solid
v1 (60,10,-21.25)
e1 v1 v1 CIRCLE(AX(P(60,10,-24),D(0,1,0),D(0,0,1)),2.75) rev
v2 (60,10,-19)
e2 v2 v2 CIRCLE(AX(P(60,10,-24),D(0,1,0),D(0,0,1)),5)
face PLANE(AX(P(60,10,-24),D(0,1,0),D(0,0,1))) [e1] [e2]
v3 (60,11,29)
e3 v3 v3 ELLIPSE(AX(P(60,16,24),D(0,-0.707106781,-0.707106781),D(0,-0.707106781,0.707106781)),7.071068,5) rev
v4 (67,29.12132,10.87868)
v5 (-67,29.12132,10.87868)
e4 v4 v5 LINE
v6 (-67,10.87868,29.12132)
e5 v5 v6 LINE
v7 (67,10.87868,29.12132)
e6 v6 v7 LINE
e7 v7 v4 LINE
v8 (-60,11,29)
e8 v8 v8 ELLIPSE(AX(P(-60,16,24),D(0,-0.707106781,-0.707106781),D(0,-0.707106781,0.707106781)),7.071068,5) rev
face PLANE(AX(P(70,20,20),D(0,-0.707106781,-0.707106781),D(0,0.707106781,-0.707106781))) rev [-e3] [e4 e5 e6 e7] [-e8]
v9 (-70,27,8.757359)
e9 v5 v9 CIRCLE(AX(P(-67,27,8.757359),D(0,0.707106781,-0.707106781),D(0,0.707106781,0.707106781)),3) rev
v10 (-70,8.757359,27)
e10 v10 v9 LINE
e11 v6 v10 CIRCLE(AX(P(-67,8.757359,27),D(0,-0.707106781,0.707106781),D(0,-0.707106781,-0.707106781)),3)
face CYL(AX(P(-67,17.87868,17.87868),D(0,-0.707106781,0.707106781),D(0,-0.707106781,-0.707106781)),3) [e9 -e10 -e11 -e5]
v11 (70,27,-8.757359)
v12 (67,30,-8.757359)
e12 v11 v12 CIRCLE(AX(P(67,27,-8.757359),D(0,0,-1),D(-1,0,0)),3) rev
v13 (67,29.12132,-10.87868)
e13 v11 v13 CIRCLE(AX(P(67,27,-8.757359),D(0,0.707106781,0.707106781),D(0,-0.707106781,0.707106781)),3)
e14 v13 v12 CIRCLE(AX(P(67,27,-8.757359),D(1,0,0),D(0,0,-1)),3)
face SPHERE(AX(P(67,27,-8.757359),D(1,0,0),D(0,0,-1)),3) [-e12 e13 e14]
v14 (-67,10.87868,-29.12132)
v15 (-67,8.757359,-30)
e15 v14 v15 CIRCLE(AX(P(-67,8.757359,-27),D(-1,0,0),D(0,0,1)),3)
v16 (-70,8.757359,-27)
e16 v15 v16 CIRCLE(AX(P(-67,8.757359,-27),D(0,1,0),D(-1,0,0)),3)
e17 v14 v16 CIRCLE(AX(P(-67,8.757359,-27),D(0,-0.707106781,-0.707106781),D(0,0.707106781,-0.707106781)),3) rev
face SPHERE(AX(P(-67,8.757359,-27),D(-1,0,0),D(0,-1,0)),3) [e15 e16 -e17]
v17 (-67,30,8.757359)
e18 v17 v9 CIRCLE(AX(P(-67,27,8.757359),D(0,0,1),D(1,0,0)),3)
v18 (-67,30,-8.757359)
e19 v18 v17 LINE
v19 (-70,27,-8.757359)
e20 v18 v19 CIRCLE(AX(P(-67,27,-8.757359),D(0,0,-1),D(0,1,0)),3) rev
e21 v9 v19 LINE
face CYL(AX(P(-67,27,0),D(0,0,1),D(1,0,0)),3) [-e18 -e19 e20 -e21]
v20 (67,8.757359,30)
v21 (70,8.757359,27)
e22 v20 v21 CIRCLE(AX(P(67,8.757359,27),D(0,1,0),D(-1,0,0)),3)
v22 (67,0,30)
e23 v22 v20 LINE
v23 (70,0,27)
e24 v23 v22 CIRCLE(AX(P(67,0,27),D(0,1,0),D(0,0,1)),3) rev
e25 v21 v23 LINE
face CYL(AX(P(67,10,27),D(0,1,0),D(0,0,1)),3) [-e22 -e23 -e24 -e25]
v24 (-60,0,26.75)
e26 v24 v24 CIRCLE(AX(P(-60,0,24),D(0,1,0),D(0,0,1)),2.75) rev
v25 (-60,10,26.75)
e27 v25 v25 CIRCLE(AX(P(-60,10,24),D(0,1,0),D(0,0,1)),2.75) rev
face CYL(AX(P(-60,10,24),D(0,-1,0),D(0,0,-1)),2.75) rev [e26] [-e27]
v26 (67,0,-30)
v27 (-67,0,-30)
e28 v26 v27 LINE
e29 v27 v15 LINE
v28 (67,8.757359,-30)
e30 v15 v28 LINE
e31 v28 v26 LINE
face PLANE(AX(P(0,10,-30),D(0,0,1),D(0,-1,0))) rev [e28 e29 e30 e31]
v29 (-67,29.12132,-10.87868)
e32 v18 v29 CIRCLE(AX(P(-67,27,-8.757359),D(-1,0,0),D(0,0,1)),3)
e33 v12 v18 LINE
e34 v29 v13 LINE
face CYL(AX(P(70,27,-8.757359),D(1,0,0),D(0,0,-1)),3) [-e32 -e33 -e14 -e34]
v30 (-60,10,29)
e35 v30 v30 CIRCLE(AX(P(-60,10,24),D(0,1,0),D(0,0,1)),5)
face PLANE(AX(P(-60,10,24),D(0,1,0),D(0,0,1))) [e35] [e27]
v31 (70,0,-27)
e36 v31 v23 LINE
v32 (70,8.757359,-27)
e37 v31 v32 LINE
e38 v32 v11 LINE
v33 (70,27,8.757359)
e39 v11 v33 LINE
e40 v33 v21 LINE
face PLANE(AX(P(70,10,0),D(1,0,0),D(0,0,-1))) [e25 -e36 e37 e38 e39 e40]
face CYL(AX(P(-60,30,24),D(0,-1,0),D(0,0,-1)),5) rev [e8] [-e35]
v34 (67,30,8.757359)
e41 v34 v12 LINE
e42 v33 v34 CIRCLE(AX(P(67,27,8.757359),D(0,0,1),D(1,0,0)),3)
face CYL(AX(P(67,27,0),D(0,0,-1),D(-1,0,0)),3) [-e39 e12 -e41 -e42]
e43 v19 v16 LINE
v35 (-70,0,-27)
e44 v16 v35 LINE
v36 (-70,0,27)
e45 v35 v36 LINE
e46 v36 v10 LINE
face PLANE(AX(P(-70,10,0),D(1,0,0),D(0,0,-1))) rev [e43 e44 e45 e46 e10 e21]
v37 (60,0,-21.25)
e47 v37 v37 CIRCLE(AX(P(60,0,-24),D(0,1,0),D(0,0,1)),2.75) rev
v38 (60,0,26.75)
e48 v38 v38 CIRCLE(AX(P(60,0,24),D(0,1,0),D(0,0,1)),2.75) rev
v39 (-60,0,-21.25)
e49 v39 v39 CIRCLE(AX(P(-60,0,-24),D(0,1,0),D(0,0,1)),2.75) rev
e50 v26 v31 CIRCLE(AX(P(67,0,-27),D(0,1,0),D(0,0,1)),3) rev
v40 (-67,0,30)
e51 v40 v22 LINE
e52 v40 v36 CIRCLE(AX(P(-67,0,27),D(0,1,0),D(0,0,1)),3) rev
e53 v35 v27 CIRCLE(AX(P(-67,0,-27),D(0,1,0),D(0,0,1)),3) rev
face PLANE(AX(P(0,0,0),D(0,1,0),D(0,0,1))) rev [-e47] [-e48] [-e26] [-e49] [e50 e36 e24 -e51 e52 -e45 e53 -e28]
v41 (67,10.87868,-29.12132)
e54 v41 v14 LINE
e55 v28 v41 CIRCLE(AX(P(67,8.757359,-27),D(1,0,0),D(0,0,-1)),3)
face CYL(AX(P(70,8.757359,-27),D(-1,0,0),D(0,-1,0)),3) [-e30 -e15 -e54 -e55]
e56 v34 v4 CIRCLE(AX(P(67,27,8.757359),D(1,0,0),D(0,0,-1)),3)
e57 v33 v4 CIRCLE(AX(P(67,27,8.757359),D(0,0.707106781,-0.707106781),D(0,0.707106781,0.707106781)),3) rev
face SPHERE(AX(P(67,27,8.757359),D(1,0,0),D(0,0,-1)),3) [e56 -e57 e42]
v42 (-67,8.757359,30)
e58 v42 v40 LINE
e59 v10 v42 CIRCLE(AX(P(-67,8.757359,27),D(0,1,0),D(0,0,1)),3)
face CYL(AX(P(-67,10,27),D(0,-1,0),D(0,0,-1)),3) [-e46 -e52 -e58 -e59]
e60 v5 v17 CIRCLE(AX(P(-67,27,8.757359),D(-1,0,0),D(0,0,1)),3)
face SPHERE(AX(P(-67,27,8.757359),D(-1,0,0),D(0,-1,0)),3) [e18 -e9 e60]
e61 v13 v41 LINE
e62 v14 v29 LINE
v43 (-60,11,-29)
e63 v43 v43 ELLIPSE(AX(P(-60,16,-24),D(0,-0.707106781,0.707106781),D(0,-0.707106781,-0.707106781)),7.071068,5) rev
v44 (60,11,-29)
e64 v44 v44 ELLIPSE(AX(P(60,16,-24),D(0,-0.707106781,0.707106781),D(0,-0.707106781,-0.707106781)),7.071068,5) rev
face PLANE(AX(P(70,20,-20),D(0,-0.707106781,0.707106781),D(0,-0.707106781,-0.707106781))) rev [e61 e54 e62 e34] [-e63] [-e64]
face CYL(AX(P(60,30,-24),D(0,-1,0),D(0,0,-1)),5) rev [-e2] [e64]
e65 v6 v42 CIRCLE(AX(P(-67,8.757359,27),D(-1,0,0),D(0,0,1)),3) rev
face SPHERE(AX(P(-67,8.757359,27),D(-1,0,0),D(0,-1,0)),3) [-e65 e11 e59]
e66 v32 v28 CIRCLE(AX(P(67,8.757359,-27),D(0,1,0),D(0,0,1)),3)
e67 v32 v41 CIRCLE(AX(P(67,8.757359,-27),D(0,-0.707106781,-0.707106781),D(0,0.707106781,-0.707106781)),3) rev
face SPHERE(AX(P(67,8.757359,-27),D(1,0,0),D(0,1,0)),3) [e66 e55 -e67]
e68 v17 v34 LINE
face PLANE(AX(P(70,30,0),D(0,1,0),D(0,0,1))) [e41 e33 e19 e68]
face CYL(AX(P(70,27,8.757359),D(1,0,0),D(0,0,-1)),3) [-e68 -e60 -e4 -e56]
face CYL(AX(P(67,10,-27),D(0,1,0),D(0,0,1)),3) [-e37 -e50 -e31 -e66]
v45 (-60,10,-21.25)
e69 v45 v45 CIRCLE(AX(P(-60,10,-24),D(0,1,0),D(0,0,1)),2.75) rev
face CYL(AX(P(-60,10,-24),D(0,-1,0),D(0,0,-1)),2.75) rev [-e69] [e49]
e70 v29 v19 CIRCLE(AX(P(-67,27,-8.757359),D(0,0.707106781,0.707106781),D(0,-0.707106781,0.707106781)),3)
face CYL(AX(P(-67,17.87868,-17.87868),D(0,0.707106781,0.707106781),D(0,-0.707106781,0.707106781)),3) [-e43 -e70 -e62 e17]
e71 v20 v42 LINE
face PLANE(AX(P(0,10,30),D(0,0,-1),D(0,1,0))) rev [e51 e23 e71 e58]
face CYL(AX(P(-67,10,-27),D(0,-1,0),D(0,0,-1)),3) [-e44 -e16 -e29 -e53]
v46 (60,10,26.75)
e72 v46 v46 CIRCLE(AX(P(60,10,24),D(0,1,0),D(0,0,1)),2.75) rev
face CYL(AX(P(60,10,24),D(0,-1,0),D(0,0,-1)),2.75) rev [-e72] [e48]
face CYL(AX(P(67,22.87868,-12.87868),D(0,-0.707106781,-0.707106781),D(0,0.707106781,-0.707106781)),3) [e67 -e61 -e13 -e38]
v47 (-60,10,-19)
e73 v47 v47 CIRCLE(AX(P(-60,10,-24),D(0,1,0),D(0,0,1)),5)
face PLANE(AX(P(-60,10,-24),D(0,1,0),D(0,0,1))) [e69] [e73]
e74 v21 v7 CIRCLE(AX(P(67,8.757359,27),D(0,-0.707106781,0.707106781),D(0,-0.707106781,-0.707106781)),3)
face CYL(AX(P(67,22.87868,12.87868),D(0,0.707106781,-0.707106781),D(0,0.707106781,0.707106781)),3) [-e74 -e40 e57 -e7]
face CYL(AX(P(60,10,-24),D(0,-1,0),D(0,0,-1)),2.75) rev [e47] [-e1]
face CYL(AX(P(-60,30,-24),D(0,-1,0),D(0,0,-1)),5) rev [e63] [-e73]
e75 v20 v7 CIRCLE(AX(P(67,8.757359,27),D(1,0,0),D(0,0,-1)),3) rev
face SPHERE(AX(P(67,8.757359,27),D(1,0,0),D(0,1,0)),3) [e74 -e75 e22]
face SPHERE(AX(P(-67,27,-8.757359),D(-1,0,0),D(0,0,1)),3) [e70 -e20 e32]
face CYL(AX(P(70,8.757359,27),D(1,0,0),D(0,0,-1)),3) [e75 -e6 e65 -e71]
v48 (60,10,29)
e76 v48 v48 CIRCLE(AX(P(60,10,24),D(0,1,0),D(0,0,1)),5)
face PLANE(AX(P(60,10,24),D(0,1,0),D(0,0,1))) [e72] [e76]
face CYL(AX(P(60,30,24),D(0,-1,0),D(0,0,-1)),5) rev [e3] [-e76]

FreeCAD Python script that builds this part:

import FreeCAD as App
import Part
import Sketcher
Q = App.Units.Quantity


def edges_at(feature, points):
    """Names of the edges that pass closest to the given points."""
    edges = feature.Shape.Edges
    near = lambda p: min(range(len(edges)), key=lambda i: edges[i].distToShape(Part.Vertex(*p))[0])
    return sorted({f"Edge{near(p) + 1}" for p in points})

doc = App.newDocument("Part")
body = doc.addObject("PartDesign::Body", "Body")

# Sketch on XZ plane
sketch1 = body.newObject("Sketcher::SketchObject", "Sketch")
sketch1.AttachmentSupport = (doc.getObject("XZ_Plane"), [""])
sketch1.MapMode = "FlatFace"
sketch1.addGeometry(Part.LineSegment(App.Vector(70, -30, 0), App.Vector(-70, -30, 0)), False)
sketch1.addGeometry(Part.LineSegment(App.Vector(-70, -30, 0), App.Vector(-70, 30, 0)), False)
sketch1.addGeometry(Part.LineSegment(App.Vector(-70, 30, 0), App.Vector(70, 30, 0)), False)
sketch1.addGeometry(Part.LineSegment(App.Vector(70, 30, 0), App.Vector(70, -30, 0)), False)
sketch1.addGeometry(Part.Circle(App.Vector(60, -24, 0), App.Vector(0, 0, 1), 2.8), False)
sketch1.addGeometry(Part.Circle(App.Vector(-60, 24, 0), App.Vector(0, 0, 1), 2.8), False)
sketch1.addGeometry(Part.Circle(App.Vector(60, 24, 0), App.Vector(0, 0, 1), 2.8), False)
sketch1.addGeometry(Part.Circle(App.Vector(-60, -24, 0), App.Vector(0, 0, 1), 2.8), False)
sketch1.addConstraint(Sketcher.Constraint("Coincident", 0, 2, 1, 1))
sketch1.addConstraint(Sketcher.Constraint("Coincident", 1, 2, 2, 1))
sketch1.addConstraint(Sketcher.Constraint("Coincident", 2, 2, 3, 1))
sketch1.addConstraint(Sketcher.Constraint("Coincident", 3, 2, 0, 1))
sketch1.addConstraint(Sketcher.Constraint("Horizontal", 0))
sketch1.addConstraint(Sketcher.Constraint("Vertical", 1))
sketch1.addConstraint(Sketcher.Constraint("Horizontal", 2))
sketch1.addConstraint(Sketcher.Constraint("Vertical", 3))
sketch1.addConstraint(Sketcher.Constraint("Equal", 4, 5))
sketch1.addConstraint(Sketcher.Constraint("Equal", 5, 6))
sketch1.addConstraint(Sketcher.Constraint("Equal", 6, 7))
sketch1.addConstraint(Sketcher.Constraint("Symmetric", 4, 3, 5, 3, -1, 1))
sketch1.addConstraint(Sketcher.Constraint("Symmetric", 6, 3, 7, 3, -1, 1))
sketch1.addConstraint(Sketcher.Constraint("Symmetric", 0, 2, 2, 2, -1, 1))
sketch1.addConstraint(Sketcher.Constraint("Symmetric", 5, 3, 6, 3, -2))
sketch1.addConstraint(Sketcher.Constraint("Diameter", 4, Q("5.5 mm")))
sketch1.addConstraint(Sketcher.Constraint("DistanceX", 0, 2, 0, 1, Q("140 mm")))
sketch1.addConstraint(Sketcher.Constraint("DistanceY", 1, 1, 1, 2, Q("60 mm")))
sketch1.addConstraint(Sketcher.Constraint("DistanceX", -1, 1, 4, 3, Q("60 mm")))
sketch1.addConstraint(Sketcher.Constraint("DistanceY", 4, 3, -1, 1, Q("24 mm")))
pad1 = body.newObject("PartDesign::Pad", "Pad")
pad1.Profile = sketch1
pad1.Length = 10
pad1.Reversed = True

# Sketch on YZ plane
sketch2 = body.newObject("Sketcher::SketchObject", "Sketch001")
sketch2.AttachmentSupport = (doc.getObject("YZ_Plane"), [""])
sketch2.MapMode = "FlatFace"
sketch2.AttachmentOffset = App.Placement(App.Vector(0, 0, -70), App.Rotation())
sketch2.addGeometry(Part.LineSegment(App.Vector(30, -10, 0), App.Vector(10, -30, 0)), False)
sketch2.addGeometry(Part.LineSegment(App.Vector(10, -30, 0), App.Vector(10, 30, 0)), False)
sketch2.addGeometry(Part.LineSegment(App.Vector(10, 30, 0), App.Vector(30, 10, 0)), False)
sketch2.addGeometry(Part.LineSegment(App.Vector(30, 10, 0), App.Vector(30, -10, 0)), False)
sketch2.addConstraint(Sketcher.Constraint("Coincident", 0, 2, 1, 1))
sketch2.addConstraint(Sketcher.Constraint("Coincident", 1, 2, 2, 1))
sketch2.addConstraint(Sketcher.Constraint("Coincident", 2, 2, 3, 1))
sketch2.addConstraint(Sketcher.Constraint("Coincident", 3, 2, 0, 1))
sketch2.addConstraint(Sketcher.Constraint("Vertical", 1))
sketch2.addConstraint(Sketcher.Constraint("Vertical", 3))
sketch2.addConstraint(Sketcher.Constraint("Perpendicular", 0, 2))
sketch2.addConstraint(Sketcher.Constraint("Equal", 0, 2))
sketch2.addConstraint(Sketcher.Constraint("DistanceY", 1, 1, 1, 2, Q("60 mm")))
sketch2.addConstraint(Sketcher.Constraint("DistanceY", 3, 2, 3, 1, Q("20 mm")))
sketch2.addConstraint(Sketcher.Constraint("DistanceX", -1, 1, 0, 2, Q("10 mm")))
sketch2.addConstraint(Sketcher.Constraint("DistanceY", 0, 2, -1, 1, Q("30 mm")))
pad2 = body.newObject("PartDesign::Pad", "Pad001")
pad2.Profile = sketch2
pad2.Length = 140

# Sketch on XZ plane
sketch3 = body.newObject("Sketcher::SketchObject", "Sketch002")
sketch3.AttachmentSupport = (doc.getObject("XZ_Plane"), [""])
sketch3.MapMode = "FlatFace"
sketch3.AttachmentOffset = App.Placement(App.Vector(0, 0, -10), App.Rotation())
sketch3.addGeometry(Part.Circle(App.Vector(60, -24, 0), App.Vector(0, 0, 1), 5), False)
sketch3.addGeometry(Part.Circle(App.Vector(60, 24, 0), App.Vector(0, 0, 1), 5), False)
sketch3.addGeometry(Part.Circle(App.Vector(-60, -24, 0), App.Vector(0, 0, 1), 5), False)
sketch3.addGeometry(Part.Circle(App.Vector(-60, 24, 0), App.Vector(0, 0, 1), 5), False)
sketch3.addConstraint(Sketcher.Constraint("Equal", 0, 1))
sketch3.addConstraint(Sketcher.Constraint("Equal", 1, 2))
sketch3.addConstraint(Sketcher.Constraint("Equal", 2, 3))
sketch3.addConstraint(Sketcher.Constraint("Symmetric", 1, 3, 2, 3, -1, 1))
sketch3.addConstraint(Sketcher.Constraint("Symmetric", 0, 3, 3, 3, -1, 1))
sketch3.addConstraint(Sketcher.Constraint("Symmetric", 0, 3, 2, 3, -2))
sketch3.addConstraint(Sketcher.Constraint("Diameter", 0, Q("10 mm")))
sketch3.addConstraint(Sketcher.Constraint("DistanceX", -1, 1, 0, 3, Q("60 mm")))
sketch3.addConstraint(Sketcher.Constraint("DistanceY", 0, 3, -1, 1, Q("24 mm")))
pocket1 = body.newObject("PartDesign::Pocket", "Pocket")
pocket1.Profile = sketch3
pocket1.Type = "ThroughAll"
doc.recompute()

fillet = body.newObject("PartDesign::Fillet", "Fillet")
fillet.Base = (pocket1, edges_at(pocket1, [
    (0, 10, -30),
    (70, 5, 30),
    (-70, 5, 30),
    (-70, 5, -30),
    (70, 5, -30),
    (0, 10, 30),
    (-70, 20, -20),
    (70, 30, 0),
    (0, 30, -10),
    (-70, 20, 20),
    (0, 30, 10),
    (70, 20, -20),
    (70, 20, 20),
    (-70, 30, 0),
]))
fillet.Radius = 3

doc.recompute()
